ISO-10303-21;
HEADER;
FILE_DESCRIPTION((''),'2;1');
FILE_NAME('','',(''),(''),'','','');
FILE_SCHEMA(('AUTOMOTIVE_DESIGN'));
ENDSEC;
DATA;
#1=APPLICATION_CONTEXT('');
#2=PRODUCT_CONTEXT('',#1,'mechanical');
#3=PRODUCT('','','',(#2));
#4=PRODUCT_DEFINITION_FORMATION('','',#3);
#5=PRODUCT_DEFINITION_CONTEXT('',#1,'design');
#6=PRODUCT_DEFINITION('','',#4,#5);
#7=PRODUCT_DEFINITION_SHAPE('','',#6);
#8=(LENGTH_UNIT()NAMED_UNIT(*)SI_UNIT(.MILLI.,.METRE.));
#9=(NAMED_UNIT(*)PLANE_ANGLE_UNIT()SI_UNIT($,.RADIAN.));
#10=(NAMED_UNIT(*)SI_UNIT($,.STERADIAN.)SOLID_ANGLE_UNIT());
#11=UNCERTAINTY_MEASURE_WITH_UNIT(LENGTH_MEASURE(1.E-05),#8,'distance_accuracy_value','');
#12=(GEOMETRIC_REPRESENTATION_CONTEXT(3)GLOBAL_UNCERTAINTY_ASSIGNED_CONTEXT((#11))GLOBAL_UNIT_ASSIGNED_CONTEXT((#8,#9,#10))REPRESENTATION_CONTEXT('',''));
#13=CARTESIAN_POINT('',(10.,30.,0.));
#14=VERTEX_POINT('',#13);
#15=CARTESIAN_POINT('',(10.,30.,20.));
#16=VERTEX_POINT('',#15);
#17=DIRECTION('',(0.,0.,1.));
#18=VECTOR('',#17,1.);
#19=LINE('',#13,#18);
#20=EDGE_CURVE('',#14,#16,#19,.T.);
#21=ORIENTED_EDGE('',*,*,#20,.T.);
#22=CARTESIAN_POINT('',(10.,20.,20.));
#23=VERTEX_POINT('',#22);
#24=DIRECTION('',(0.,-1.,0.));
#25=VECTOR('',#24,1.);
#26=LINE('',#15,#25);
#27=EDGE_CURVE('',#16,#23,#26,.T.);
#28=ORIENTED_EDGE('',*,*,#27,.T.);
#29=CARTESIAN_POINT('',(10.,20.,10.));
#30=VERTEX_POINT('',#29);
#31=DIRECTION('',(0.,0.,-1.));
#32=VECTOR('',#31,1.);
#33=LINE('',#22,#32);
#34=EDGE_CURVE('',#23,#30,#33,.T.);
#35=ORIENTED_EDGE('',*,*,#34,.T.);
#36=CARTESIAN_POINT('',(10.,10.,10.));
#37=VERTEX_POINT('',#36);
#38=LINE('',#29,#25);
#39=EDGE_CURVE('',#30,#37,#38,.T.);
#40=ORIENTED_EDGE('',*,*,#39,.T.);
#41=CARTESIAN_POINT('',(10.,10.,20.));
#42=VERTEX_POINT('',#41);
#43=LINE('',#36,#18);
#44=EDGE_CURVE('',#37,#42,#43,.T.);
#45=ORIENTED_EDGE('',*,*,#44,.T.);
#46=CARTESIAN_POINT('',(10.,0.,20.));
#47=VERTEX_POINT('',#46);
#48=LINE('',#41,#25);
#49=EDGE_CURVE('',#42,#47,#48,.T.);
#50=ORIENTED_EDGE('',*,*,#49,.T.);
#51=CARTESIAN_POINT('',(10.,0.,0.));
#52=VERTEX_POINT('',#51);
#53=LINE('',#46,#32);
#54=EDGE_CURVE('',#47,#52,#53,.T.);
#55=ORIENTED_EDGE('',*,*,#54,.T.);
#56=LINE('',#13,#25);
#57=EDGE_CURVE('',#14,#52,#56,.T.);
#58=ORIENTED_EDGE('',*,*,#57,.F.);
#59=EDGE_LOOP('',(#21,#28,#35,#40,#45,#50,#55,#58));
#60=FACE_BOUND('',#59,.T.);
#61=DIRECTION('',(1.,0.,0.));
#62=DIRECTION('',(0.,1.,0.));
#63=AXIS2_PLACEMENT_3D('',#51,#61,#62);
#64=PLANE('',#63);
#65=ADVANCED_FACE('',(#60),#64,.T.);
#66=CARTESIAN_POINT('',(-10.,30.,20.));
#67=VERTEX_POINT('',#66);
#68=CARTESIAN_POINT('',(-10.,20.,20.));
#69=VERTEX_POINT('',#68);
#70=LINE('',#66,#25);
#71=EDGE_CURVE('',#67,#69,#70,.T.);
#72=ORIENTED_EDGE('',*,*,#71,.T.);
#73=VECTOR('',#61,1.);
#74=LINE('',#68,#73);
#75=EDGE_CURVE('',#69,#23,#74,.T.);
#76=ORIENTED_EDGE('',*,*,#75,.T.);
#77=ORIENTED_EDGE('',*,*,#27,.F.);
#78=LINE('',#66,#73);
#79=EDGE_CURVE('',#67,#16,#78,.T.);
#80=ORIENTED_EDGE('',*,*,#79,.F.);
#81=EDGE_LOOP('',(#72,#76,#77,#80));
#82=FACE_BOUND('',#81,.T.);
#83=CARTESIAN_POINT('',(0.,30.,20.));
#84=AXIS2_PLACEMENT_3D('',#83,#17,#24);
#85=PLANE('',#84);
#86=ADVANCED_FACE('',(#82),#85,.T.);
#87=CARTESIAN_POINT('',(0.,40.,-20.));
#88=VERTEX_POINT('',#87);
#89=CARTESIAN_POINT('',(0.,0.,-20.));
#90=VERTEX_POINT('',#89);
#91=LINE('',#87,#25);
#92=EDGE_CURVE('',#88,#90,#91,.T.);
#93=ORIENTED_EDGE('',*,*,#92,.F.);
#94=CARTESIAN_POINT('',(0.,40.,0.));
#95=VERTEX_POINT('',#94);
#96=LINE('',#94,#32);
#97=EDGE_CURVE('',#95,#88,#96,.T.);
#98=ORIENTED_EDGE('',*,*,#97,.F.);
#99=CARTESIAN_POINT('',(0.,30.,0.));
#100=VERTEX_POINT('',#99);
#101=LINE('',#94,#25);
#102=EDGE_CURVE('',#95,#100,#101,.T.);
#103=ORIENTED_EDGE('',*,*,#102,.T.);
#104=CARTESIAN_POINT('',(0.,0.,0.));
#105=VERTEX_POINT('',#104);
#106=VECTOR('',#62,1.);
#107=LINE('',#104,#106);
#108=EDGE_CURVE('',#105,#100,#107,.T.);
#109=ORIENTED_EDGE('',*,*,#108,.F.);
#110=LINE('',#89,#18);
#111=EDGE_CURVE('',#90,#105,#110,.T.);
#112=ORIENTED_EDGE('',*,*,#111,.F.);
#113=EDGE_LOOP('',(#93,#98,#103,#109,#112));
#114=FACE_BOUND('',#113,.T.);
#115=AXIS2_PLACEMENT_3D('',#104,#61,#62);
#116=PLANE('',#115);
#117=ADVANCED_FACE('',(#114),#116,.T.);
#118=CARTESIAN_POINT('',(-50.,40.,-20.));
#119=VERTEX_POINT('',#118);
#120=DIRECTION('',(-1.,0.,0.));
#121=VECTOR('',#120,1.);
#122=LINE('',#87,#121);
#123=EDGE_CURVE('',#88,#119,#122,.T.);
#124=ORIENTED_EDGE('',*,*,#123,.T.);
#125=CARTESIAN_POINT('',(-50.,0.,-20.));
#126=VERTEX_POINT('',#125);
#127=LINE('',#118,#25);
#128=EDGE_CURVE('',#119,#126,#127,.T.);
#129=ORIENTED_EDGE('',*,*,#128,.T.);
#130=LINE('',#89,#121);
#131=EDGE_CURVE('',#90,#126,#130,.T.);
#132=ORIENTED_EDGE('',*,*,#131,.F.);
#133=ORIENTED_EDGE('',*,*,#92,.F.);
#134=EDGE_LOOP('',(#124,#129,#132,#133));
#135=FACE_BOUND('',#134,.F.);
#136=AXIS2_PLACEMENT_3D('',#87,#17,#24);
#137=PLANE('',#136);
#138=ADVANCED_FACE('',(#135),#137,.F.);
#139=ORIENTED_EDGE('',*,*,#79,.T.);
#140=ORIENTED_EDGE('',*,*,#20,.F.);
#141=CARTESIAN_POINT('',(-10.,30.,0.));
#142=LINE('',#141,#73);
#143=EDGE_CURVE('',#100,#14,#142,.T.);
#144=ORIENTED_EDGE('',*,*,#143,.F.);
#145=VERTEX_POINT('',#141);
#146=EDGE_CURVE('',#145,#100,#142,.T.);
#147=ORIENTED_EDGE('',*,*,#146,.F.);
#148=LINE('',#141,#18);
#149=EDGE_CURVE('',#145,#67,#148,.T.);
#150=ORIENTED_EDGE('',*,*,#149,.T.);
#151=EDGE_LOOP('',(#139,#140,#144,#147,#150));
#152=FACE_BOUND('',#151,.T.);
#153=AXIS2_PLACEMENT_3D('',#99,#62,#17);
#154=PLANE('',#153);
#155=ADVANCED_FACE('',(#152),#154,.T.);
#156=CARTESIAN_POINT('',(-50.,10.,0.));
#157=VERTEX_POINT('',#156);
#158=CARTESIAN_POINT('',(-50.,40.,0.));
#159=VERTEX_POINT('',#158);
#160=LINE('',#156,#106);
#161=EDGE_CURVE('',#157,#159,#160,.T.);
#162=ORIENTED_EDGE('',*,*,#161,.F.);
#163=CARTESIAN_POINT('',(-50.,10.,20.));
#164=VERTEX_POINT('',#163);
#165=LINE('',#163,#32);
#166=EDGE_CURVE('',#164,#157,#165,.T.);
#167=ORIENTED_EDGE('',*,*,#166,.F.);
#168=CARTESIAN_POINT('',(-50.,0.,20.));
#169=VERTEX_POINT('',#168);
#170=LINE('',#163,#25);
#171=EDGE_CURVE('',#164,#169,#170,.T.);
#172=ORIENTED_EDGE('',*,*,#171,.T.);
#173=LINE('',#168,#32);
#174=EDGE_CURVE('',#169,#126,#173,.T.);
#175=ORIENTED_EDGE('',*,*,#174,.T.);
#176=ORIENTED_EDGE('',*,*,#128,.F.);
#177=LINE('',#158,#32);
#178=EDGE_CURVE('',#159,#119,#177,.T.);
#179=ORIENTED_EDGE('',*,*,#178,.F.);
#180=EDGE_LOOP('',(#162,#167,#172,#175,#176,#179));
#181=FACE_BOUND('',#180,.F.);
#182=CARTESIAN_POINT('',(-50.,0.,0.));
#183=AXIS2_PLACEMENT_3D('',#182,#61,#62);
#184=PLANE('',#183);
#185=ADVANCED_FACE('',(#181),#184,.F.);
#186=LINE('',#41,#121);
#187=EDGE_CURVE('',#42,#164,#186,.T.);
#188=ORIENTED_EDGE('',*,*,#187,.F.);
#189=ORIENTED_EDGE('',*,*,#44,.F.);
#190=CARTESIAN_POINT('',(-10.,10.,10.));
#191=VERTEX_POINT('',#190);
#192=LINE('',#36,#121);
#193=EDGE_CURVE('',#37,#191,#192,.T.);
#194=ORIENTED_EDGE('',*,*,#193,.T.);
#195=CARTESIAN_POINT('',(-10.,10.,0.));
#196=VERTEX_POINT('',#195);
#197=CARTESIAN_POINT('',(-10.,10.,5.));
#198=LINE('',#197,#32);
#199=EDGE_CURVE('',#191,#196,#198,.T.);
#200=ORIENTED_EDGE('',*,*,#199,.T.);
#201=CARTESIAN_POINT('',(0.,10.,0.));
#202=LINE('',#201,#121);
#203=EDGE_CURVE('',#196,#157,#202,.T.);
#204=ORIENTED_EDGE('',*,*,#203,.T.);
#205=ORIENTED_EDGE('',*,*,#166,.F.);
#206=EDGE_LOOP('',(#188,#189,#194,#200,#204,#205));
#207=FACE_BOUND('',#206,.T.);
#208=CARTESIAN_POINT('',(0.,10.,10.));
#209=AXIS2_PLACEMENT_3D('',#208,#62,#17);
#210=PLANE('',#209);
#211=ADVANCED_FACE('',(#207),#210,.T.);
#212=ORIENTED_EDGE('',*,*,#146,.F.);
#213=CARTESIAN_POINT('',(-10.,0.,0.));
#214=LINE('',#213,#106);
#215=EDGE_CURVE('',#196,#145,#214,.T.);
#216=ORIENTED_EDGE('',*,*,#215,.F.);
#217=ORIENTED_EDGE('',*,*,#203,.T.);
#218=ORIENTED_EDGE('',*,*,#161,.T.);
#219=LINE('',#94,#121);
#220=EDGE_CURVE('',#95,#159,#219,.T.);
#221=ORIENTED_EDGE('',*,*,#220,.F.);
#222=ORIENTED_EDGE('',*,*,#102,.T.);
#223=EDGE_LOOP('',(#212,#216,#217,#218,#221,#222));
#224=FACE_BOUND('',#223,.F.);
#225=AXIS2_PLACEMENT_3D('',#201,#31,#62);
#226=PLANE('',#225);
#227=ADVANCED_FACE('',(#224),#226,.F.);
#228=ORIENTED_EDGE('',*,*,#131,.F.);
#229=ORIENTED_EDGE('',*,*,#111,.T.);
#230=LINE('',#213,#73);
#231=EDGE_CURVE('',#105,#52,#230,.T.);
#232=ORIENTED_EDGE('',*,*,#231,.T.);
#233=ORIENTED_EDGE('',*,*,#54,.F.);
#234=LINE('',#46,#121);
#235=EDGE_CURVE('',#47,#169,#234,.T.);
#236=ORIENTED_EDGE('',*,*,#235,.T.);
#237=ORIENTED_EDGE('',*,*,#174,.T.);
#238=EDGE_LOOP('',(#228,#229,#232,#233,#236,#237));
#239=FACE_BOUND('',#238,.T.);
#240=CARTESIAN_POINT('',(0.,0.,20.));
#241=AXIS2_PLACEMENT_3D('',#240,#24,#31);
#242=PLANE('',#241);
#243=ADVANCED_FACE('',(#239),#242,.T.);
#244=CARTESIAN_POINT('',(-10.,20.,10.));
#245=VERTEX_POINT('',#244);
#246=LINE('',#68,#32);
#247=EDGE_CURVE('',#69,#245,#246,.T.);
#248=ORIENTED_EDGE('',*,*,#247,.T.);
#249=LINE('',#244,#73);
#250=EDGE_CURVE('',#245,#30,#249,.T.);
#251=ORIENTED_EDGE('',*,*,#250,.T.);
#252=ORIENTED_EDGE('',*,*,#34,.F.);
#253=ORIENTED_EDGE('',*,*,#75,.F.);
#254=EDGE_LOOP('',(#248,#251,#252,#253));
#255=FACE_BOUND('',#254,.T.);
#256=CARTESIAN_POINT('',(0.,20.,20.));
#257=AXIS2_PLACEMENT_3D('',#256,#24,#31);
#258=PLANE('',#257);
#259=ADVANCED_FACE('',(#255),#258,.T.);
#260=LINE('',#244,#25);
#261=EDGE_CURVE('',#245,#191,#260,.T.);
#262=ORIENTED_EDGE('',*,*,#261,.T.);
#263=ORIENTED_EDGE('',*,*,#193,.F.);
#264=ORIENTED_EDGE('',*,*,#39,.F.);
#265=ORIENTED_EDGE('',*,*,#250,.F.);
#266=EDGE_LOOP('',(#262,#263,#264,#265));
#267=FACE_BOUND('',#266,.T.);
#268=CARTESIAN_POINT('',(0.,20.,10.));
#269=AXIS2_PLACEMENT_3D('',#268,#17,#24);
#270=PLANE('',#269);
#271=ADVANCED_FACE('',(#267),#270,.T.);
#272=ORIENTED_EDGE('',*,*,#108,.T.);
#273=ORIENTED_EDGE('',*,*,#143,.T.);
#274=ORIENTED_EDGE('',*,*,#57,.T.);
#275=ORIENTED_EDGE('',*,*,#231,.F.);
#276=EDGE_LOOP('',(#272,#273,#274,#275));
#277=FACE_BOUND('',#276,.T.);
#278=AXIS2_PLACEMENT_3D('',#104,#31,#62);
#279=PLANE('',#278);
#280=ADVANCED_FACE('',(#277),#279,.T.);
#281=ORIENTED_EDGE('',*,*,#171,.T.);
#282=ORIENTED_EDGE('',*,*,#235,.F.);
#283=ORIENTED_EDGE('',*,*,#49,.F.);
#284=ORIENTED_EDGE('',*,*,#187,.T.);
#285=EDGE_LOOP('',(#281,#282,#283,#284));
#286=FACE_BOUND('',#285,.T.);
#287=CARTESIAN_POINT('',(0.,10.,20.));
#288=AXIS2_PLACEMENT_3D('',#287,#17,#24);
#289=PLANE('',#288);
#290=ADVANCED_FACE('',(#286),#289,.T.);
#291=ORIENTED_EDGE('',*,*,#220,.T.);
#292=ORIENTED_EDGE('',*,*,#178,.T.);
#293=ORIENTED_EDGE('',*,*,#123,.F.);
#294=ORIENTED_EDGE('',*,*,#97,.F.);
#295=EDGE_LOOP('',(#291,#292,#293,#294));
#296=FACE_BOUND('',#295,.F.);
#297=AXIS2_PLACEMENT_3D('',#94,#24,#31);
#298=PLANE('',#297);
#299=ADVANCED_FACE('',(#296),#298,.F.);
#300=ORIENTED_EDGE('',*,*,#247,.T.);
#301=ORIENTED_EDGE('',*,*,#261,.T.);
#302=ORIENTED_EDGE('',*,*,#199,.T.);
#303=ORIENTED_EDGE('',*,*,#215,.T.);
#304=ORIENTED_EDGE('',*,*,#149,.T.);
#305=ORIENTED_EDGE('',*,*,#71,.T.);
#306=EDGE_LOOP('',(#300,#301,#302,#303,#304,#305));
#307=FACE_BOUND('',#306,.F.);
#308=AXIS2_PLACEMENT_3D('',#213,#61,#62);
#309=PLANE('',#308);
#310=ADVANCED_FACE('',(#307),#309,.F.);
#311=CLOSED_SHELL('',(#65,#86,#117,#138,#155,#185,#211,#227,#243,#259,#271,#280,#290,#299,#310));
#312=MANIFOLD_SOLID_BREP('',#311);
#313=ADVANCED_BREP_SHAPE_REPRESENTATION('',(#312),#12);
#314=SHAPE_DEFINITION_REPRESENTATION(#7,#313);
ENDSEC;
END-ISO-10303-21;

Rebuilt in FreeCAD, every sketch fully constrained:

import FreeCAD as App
import Part
import Sketcher
Q = App.Units.Quantity


def add_polygon(sketch, points):
    """Adds a closed chain of lines whose ends are joined by coincident constraints."""
    first, n = sketch.GeometryCount, len(points)
    for a, b in zip(points, points[1:] + points[:1]):
        sketch.addGeometry(Part.LineSegment(App.Vector(*a, 0), App.Vector(*b, 0)), False)
    for i in range(n):
        sketch.addConstraint(Sketcher.Constraint("Coincident", first + i, 2, first + (i + 1) % n, 1))

doc = App.newDocument("Part")
body = doc.addObject("PartDesign::Body", "Body")

sketch1 = body.newObject("Sketcher::SketchObject", "Sketch")
sketch1.AttachmentSupport = (doc.getObject("YZ_Plane"), [""])
sketch1.MapMode = "FlatFace"
add_polygon(sketch1, [(0, 20), (0, -20), (40, -20), (40, 0), (10, 0), (10, 20)])
sketch1.addConstraint([
    Sketcher.Constraint("Vertical", 0),
    Sketcher.Constraint("Horizontal", 1),
    Sketcher.Constraint("Vertical", 2),
    Sketcher.Constraint("Horizontal", 3),
    Sketcher.Constraint("Vertical", 4),
    Sketcher.Constraint("Horizontal", 5),
    Sketcher.Constraint("Symmetric", 0, 2, 5, 2, -1, 1),
    Sketcher.Constraint("PointOnObject", 2, 2, -1),
    Sketcher.Constraint("Equal", 1, 0),
    Sketcher.Constraint("DistanceX", 1, 1, 1, 2, Q("40 mm")),
    Sketcher.Constraint("DistanceX", 3, 2, 3, 1, Q("30 mm")),
])
pad1 = body.newObject("PartDesign::Pad", "Pad")
pad1.Profile = sketch1
pad1.Length = 50
pad1.Reversed = True

sketch2 = body.newObject("Sketcher::SketchObject", "Sketch001")
sketch2.AttachmentSupport = (doc.getObject("YZ_Plane"), [""])
sketch2.MapMode = "FlatFace"
add_polygon(sketch2, [(0, 20), (0, 0), (30, 0), (30, 20), (20, 20), (20, 10), (10, 10), (10, 20)])
sketch2.addConstraint([
    Sketcher.Constraint("Vertical", 0),
    Sketcher.Constraint("Horizontal", 1),
    Sketcher.Constraint("Vertical", 2),
    Sketcher.Constraint("Horizontal", 3),
    Sketcher.Constraint("Vertical", 4),
    Sketcher.Constraint("Horizontal", 5),
    Sketcher.Constraint("Vertical", 6),
    Sketcher.Constraint("Horizontal", 7),
    Sketcher.Constraint("Coincident", 0, 2, -1, 1),
    Sketcher.Constraint("Horizontal", 3, 2, 6, 2),
    Sketcher.Constraint("Equal", 3, 5),
    Sketcher.Constraint("Equal", 5, 7),
    Sketcher.Constraint("Equal", 7, 4),
    Sketcher.Constraint("DistanceX", 1, 1, 1, 2, Q("30 mm")),
    Sketcher.Constraint("DistanceY", 0, 2, 0, 1, Q("20 mm")),
])
pad2 = body.newObject("PartDesign::Pad", "Pad001")
pad2.Profile = sketch2
pad2.Length = 20
pad2.Midplane = True

doc.recompute()
